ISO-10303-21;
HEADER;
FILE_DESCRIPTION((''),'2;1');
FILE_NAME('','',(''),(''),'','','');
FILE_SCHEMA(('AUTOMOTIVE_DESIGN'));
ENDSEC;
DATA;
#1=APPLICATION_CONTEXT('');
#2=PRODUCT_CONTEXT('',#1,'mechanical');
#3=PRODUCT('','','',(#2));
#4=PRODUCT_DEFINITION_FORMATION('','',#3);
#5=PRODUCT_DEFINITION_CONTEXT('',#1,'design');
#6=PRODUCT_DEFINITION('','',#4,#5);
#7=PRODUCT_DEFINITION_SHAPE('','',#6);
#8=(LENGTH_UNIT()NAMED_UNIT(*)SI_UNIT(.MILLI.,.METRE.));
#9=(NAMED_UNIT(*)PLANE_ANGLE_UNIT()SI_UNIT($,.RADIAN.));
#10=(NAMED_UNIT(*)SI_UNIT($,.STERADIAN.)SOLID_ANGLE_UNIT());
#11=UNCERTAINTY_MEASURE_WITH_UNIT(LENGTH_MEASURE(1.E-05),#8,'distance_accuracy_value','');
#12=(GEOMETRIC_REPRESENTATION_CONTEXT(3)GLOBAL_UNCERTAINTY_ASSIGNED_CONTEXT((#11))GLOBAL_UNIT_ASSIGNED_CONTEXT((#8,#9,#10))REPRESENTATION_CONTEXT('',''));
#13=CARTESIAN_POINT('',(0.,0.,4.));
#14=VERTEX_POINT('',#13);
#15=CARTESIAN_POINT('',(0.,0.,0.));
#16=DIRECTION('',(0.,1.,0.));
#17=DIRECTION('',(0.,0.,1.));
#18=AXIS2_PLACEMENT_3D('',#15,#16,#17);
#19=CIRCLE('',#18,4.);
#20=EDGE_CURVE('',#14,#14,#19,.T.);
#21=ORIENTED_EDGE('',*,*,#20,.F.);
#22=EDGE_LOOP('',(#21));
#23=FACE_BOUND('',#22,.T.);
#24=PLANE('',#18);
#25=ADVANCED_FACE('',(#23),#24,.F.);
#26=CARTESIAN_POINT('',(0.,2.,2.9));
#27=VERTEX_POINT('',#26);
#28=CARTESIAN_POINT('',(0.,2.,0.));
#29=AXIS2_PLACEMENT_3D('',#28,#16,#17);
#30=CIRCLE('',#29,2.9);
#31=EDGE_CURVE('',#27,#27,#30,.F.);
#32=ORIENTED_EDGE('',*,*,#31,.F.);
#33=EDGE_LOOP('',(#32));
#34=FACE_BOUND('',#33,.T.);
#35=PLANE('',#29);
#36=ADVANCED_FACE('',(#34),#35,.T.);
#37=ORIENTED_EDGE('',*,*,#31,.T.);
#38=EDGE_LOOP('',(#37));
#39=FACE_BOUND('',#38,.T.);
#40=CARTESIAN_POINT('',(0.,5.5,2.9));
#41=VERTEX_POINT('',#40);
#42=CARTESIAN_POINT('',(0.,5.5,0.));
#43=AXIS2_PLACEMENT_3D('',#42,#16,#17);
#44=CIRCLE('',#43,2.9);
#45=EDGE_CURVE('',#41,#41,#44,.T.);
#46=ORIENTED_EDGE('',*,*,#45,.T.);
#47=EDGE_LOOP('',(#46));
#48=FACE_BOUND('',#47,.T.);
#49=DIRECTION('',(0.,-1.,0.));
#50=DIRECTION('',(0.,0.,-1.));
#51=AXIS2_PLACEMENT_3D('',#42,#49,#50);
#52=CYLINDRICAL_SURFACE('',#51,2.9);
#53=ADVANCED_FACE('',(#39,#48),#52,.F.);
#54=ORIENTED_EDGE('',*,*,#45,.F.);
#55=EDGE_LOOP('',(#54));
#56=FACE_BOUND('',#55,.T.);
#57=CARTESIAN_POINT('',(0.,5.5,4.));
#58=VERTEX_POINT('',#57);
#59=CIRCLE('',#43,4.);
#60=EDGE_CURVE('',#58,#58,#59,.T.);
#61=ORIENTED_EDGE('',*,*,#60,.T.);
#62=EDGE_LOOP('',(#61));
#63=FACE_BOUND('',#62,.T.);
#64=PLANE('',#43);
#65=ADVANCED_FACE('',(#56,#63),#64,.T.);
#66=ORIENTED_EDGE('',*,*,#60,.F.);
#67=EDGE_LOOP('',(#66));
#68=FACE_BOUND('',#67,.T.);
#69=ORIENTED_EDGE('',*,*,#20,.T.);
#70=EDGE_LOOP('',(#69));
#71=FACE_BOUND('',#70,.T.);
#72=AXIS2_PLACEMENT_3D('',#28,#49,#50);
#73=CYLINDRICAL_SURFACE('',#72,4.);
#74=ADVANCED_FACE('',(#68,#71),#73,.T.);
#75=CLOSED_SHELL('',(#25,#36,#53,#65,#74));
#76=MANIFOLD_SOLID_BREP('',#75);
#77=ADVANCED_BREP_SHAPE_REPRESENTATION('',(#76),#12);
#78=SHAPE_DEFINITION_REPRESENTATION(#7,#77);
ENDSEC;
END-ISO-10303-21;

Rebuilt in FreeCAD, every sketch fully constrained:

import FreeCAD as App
import Part
import Sketcher
Q = App.Units.Quantity

doc = App.newDocument("Part")
body = doc.addObject("PartDesign::Body", "Body")

# Sketch on XZ plane
sketch1 = body.newObject("Sketcher::SketchObject", "Sketch")
sketch1.AttachmentSupport = (doc.getObject("XZ_Plane"), [""])
sketch1.MapMode = "FlatFace"
sketch1.addGeometry(Part.Circle(App.Vector(0, 0, 0), App.Vector(0, 0, 1), 4), False)
sketch1.addConstraint([
    Sketcher.Constraint("Coincident", 0, 3, -1, 1),
    Sketcher.Constraint("Diameter", 0, Q("8 mm")),
])
pad1 = body.newObject("PartDesign::Pad", "Pad")
pad1.Profile = sketch1
pad1.Length = 2
pad1.Reversed = True

# Sketch on XZ plane
sketch2 = body.newObject("Sketcher::SketchObject", "Sketch001")
sketch2.AttachmentSupport = (doc.getObject("XZ_Plane"), [""])
sketch2.MapMode = "FlatFace"
sketch2.AttachmentOffset = App.Placement(App.Vector(0, 0, -2), App.Rotation())
sketch2.addGeometry([
    Part.Circle(App.Vector(0, 0, 0), App.Vector(0, 0, 1), 4),
    Part.Circle(App.Vector(0, 0, 0), App.Vector(0, 0, 1), 2.9),
], False)
sketch2.addConstraint([
    Sketcher.Constraint("Coincident", 0, 3, -1, 1),
    Sketcher.Constraint("Coincident", 1, 3, -1, 1),
    Sketcher.Constraint("Diameter", 0, Q("8 mm")),
    Sketcher.Constraint("Diameter", 1, Q("5.8 mm")),
])
pad2 = body.newObject("PartDesign::Pad", "Pad001")
pad2.Profile = sketch2
pad2.Length = 3.5
pad2.Reversed = True

doc.recompute()
